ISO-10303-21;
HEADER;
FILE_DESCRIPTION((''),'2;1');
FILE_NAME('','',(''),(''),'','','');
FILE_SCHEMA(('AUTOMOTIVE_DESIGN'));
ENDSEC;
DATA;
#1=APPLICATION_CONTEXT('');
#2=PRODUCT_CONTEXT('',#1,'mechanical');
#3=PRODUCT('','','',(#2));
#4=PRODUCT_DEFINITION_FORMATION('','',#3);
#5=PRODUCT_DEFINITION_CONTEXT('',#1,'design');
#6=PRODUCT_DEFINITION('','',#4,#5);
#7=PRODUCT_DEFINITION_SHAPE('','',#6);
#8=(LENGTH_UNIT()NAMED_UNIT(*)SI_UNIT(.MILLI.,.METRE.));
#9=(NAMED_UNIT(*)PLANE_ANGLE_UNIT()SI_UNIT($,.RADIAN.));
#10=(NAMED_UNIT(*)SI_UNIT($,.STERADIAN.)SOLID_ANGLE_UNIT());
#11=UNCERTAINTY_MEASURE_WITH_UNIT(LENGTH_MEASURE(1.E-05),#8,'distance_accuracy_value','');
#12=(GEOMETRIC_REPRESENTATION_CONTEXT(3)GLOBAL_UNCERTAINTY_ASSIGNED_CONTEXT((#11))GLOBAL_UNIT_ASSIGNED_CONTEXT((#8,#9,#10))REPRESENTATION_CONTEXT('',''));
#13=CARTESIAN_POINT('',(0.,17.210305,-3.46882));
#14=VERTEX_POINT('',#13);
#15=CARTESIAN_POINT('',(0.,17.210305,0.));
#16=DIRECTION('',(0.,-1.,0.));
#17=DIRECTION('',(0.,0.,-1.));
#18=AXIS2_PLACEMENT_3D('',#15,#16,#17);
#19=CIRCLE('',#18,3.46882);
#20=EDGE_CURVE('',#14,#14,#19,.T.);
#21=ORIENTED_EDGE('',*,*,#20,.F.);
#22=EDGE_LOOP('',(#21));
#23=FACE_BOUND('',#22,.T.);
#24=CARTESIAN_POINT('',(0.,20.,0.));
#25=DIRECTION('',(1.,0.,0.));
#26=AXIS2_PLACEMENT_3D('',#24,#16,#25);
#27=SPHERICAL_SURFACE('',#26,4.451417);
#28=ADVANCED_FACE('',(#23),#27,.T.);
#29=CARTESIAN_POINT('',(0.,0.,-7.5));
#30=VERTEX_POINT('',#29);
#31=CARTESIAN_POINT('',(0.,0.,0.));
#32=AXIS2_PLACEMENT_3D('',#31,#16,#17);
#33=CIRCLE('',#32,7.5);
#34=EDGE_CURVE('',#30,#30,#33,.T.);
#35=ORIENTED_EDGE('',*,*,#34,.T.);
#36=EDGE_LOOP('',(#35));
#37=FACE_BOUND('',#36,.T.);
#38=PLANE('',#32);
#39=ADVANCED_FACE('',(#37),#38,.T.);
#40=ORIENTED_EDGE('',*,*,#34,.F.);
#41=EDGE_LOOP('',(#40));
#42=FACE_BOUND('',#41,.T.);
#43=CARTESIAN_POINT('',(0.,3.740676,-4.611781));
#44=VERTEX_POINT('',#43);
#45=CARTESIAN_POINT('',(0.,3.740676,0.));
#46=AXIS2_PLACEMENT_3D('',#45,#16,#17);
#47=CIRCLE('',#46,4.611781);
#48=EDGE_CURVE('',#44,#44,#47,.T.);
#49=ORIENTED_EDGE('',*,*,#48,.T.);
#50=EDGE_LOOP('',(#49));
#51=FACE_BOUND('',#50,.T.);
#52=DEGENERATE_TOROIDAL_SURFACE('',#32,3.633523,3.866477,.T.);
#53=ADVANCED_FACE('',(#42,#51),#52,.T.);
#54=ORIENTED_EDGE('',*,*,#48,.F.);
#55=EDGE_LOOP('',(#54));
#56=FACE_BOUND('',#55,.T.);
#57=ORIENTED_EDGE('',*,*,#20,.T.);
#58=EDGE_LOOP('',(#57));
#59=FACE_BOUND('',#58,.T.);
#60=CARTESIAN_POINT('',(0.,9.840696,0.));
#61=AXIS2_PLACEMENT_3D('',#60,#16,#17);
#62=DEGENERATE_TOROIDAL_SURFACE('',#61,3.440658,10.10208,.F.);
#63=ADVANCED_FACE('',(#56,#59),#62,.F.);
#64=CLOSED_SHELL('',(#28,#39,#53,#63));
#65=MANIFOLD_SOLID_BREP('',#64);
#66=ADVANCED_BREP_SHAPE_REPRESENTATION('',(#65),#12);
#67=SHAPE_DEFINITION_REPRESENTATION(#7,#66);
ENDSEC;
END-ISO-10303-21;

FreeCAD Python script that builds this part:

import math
import FreeCAD as App
import Part
import Sketcher

doc = App.newDocument("Part")
body = doc.addObject("PartDesign::Body", "Body")

sketch1 = body.newObject("Sketcher::SketchObject", "Sketch")
sketch1.AttachmentSupport = (doc.getObject("XY_Plane"), [""])
sketch1.MapMode = "FlatFace"
sketch1.addGeometry(Part.LineSegment(App.Vector(0, 0, 0), App.Vector(7.5, 0, 0)), False)
sketch1.addGeometry(Part.ArcOfCircle(Part.Circle(App.Vector(3.6, 0, 0), App.Vector(0, 0, 1), 3.9), math.radians(0), math.radians(75)), False)
sketch1.addGeometry(Part.ArcOfCircle(Part.Circle(App.Vector(-3.4, 9.8, 0), App.Vector(0, 0, 1), 10.1), math.radians(-37), math.radians(47)), False)
sketch1.addGeometry(Part.ArcOfCircle(Part.Circle(App.Vector(0, 20, 0), App.Vector(0, 0, 1), 4.5), math.radians(-39), math.radians(90)), False)
sketch1.addGeometry(Part.LineSegment(App.Vector(0, 24.5, 0), App.Vector(0, 0, 0)), False)
sketch1.addConstraint(Sketcher.Constraint("Coincident", 0, 2, 1, 1))
sketch1.addConstraint(Sketcher.Constraint("Coincident", 1, 2, 2, 1))
sketch1.addConstraint(Sketcher.Constraint("Coincident", 2, 2, 3, 1))
sketch1.addConstraint(Sketcher.Constraint("Coincident", 3, 2, 4, 1))
sketch1.addConstraint(Sketcher.Constraint("Coincident", 4, 2, 0, 1))
sketch1.addConstraint(Sketcher.Constraint("Horizontal", 0))
sketch1.addConstraint(Sketcher.Constraint("Vertical", 4))
sketch1.addConstraint(Sketcher.Constraint("Coincident", 4, 2, -1, 1))
sketch1.addConstraint(Sketcher.Constraint("PointOnObject", 1, 3, -1))
sketch1.addConstraint(Sketcher.Constraint("PointOnObject", 3, 3, -2))
sketch1.addConstraint(Sketcher.Constraint("DistanceX", 0, 1, 0, 2, 7.5))
sketch1.addConstraint(Sketcher.Constraint("DistanceY", -1, 1, 3, 3, 20.0))
sketch1.addConstraint(Sketcher.Constraint("Radius", 2, 10.10208))
sketch1.addConstraint(Sketcher.Constraint("Radius", 1, 3.866477))
sketch1.addConstraint(Sketcher.Constraint("Radius", 3, 4.451417))
sketch1.addConstraint(Sketcher.Constraint("DistanceX", -1, 1, 1, 2, 4.611781))
sketch1.addConstraint(Sketcher.Constraint("DistanceX", -1, 1, 2, 2, 3.46882))
revolution = body.newObject("PartDesign::Revolution", "Revolution")
revolution.Profile = sketch1
revolution.ReferenceAxis = (sketch1, ["V_Axis"])
revolution.Angle = 360

doc.recompute()
